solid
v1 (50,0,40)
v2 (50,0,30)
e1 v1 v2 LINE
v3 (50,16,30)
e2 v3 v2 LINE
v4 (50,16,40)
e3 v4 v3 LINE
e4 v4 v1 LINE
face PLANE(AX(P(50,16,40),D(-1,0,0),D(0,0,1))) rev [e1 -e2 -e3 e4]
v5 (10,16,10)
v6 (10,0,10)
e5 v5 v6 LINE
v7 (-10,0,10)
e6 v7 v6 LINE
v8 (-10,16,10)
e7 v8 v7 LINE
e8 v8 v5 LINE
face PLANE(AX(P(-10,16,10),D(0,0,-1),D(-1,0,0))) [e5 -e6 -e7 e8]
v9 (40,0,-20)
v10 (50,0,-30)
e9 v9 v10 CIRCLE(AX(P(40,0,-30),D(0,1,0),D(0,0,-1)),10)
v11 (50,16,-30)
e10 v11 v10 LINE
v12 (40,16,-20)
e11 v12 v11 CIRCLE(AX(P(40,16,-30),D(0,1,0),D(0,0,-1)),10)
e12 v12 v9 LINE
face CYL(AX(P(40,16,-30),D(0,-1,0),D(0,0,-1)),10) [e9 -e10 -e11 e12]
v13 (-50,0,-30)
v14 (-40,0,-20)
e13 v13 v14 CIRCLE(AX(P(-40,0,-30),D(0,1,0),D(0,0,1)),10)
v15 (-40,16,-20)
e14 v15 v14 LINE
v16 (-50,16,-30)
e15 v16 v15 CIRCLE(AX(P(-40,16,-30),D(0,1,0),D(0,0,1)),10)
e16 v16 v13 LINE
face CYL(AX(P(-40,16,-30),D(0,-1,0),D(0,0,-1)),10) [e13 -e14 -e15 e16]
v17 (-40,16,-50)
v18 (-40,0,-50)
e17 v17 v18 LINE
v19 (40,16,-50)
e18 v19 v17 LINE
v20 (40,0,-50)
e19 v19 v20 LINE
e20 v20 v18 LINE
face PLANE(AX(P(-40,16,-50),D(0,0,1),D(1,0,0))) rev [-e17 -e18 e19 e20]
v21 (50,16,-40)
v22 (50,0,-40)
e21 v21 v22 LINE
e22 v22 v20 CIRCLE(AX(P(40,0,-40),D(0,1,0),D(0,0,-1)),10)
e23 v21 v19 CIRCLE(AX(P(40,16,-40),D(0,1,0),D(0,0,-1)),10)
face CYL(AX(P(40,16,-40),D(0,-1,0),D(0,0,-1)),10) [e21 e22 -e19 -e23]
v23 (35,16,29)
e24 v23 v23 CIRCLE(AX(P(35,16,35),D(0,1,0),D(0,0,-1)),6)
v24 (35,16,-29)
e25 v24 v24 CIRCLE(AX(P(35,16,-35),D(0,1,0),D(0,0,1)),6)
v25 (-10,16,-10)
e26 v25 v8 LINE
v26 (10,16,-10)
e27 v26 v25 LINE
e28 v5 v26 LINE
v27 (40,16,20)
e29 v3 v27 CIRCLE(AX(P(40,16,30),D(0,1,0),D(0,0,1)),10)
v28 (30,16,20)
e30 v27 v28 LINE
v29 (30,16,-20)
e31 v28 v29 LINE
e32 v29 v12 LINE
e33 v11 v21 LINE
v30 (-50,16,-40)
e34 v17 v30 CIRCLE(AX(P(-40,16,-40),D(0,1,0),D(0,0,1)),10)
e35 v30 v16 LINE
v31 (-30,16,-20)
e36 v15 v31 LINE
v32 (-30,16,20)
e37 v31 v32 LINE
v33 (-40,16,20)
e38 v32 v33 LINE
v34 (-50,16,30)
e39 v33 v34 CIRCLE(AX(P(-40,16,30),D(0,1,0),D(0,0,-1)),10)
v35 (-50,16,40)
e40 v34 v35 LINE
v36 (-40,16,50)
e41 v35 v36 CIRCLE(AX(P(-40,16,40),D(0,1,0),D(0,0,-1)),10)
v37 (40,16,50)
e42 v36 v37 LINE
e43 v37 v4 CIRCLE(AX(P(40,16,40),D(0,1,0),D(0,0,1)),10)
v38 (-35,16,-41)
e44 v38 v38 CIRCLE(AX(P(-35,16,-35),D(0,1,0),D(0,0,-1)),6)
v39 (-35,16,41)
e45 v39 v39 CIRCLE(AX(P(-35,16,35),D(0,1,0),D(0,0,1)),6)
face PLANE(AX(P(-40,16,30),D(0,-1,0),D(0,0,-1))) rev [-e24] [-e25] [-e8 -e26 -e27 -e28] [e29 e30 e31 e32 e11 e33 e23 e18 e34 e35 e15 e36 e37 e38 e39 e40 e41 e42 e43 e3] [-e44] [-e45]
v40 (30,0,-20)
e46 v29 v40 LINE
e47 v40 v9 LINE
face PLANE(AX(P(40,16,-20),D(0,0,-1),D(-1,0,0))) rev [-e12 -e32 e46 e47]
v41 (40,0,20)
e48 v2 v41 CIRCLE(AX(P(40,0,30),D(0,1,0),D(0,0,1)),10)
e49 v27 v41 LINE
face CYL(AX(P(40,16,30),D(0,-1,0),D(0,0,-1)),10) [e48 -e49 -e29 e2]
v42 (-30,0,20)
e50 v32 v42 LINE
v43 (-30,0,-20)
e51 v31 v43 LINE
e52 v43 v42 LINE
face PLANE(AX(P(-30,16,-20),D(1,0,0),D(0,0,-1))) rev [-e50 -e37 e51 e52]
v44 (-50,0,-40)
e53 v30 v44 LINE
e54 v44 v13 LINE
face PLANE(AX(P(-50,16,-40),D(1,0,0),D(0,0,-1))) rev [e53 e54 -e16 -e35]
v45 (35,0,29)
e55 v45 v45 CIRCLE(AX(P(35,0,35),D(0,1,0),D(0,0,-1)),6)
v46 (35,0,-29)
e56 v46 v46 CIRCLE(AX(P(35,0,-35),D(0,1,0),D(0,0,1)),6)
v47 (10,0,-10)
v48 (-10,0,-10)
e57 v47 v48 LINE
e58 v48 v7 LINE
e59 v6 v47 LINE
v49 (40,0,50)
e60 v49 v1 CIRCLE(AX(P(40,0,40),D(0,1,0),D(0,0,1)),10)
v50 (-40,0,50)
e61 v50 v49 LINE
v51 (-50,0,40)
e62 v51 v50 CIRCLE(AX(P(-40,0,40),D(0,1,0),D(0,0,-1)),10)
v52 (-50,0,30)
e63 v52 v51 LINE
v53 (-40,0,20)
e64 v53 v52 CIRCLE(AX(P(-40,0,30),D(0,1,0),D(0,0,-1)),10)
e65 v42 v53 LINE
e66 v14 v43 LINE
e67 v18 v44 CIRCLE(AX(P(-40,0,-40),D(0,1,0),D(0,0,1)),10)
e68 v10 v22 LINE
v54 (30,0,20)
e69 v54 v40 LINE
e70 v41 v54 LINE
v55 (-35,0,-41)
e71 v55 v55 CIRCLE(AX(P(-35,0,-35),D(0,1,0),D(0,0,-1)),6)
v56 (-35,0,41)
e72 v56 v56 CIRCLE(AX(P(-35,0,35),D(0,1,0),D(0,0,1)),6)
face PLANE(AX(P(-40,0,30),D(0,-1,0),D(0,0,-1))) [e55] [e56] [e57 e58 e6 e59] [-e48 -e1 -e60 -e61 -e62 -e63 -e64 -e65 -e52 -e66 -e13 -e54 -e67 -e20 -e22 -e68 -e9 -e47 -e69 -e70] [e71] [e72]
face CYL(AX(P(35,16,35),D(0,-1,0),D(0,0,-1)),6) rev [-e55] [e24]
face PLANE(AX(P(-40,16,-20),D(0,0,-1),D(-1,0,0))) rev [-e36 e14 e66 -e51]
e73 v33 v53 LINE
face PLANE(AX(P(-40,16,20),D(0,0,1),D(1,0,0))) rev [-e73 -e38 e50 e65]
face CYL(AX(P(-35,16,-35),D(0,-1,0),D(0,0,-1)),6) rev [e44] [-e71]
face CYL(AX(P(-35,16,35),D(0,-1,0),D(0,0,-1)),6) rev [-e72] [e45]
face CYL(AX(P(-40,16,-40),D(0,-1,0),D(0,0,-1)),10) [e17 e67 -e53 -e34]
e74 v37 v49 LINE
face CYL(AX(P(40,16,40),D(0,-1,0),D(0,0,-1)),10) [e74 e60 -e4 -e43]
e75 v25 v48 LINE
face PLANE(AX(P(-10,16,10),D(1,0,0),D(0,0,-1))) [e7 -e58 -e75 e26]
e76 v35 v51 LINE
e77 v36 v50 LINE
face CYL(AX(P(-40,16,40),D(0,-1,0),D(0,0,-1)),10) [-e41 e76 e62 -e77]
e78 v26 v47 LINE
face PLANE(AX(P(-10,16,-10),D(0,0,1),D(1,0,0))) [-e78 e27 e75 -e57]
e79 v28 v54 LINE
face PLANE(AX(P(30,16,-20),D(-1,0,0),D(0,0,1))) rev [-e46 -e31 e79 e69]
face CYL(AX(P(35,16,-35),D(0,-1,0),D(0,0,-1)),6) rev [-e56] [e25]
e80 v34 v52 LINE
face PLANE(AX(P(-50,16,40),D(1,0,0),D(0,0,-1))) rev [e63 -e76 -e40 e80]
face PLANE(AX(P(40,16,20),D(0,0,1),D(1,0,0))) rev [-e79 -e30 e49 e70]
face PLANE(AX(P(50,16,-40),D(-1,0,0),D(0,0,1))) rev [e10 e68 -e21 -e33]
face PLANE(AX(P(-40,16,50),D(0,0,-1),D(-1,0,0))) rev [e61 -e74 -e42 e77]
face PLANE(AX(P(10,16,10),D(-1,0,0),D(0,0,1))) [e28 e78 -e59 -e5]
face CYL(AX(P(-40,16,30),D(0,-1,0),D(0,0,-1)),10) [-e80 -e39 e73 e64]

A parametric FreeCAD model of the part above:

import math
import FreeCAD as App
import Part
import Sketcher
from FreeCAD import Vector

doc = App.newDocument("Part")
body = doc.addObject("PartDesign::Body", "Body")

# Sketch on XZ plane
sketch1 = body.newObject("Sketcher::SketchObject", "Sketch")
sketch1.AttachmentSupport = (doc.getObject("XZ_Plane"), [""])
sketch1.MapMode = "FlatFace"
sketch1.addGeometry([
    Part.LineSegment(Vector(40, -50, 0), Vector(-40, -50, 0)),  # 0
    Part.ArcOfCircle(Part.Circle(Vector(-40, -40, 0), Vector(0, 0, 1), 10), math.radians(180), math.radians(270)),  # 1
    Part.LineSegment(Vector(-50, -40, 0), Vector(-50, -30, 0)),  # 2
    Part.ArcOfCircle(Part.Circle(Vector(-40, -30, 0), Vector(0, 0, 1), 10), math.radians(90), math.radians(180)),  # 3
    Part.LineSegment(Vector(-40, -20, 0), Vector(-30, -20, 0)),  # 4
    Part.LineSegment(Vector(-30, -20, 0), Vector(-30, 20, 0)),  # 5
    Part.LineSegment(Vector(-30, 20, 0), Vector(-40, 20, 0)),  # 6
    Part.ArcOfCircle(Part.Circle(Vector(-40, 30, 0), Vector(0, 0, 1), 10), math.radians(180), math.radians(270)),  # 7
    Part.LineSegment(Vector(-50, 30, 0), Vector(-50, 40, 0)),  # 8
    Part.ArcOfCircle(Part.Circle(Vector(-40, 40, 0), Vector(0, 0, 1), 10), math.radians(90), math.radians(180)),  # 9
    Part.LineSegment(Vector(-40, 50, 0), Vector(40, 50, 0)),  # 10
    Part.ArcOfCircle(Part.Circle(Vector(40, 40, 0), Vector(0, 0, 1), 10), math.radians(0), math.radians(90)),  # 11
    Part.LineSegment(Vector(50, 40, 0), Vector(50, 30, 0)),  # 12
    Part.ArcOfCircle(Part.Circle(Vector(40, 30, 0), Vector(0, 0, 1), 10), math.radians(-90), math.radians(0)),  # 13
    Part.LineSegment(Vector(40, 20, 0), Vector(30, 20, 0)),  # 14
    Part.LineSegment(Vector(30, 20, 0), Vector(30, -20, 0)),  # 15
    Part.LineSegment(Vector(30, -20, 0), Vector(40, -20, 0)),  # 16
    Part.ArcOfCircle(Part.Circle(Vector(40, -30, 0), Vector(0, 0, 1), 10), math.radians(0), math.radians(90)),  # 17
    Part.LineSegment(Vector(50, -30, 0), Vector(50, -40, 0)),  # 18
    Part.ArcOfCircle(Part.Circle(Vector(40, -40, 0), Vector(0, 0, 1), 10), math.radians(-90), math.radians(0)),  # 19
    Part.Circle(Vector(35, 35, 0), Vector(0, 0, 1), 6),  # 20
    Part.Circle(Vector(-35, 35, 0), Vector(0, 0, 1), 6),  # 21
    Part.Circle(Vector(35, -35, 0), Vector(0, 0, 1), 6),  # 22
    Part.LineSegment(Vector(-10, 10, 0), Vector(-10, -10, 0)),  # 23
    Part.LineSegment(Vector(-10, -10, 0), Vector(10, -10, 0)),  # 24
    Part.LineSegment(Vector(10, -10, 0), Vector(10, 10, 0)),  # 25
    Part.LineSegment(Vector(10, 10, 0), Vector(-10, 10, 0)),  # 26
    Part.Circle(Vector(-35, -35, 0), Vector(0, 0, 1), 6),  # 27
], False)
sketch1.addConstraint([
    Sketcher.Constraint("Tangent", 0, 2, 1, 2),
    Sketcher.Constraint("Tangent", 1, 1, 2, 1),
    Sketcher.Constraint("Tangent", 2, 2, 3, 2),
    Sketcher.Constraint("Tangent", 3, 1, 4, 1),
    Sketcher.Constraint("Coincident", 4, 2, 5, 1),
    Sketcher.Constraint("Coincident", 5, 2, 6, 1),
    Sketcher.Constraint("Tangent", 6, 2, 7, 2),
    Sketcher.Constraint("Tangent", 7, 1, 8, 1),
    Sketcher.Constraint("Tangent", 8, 2, 9, 2),
    Sketcher.Constraint("Tangent", 9, 1, 10, 1),
    Sketcher.Constraint("Tangent", 10, 2, 11, 2),
    Sketcher.Constraint("Tangent", 11, 1, 12, 1),
    Sketcher.Constraint("Tangent", 12, 2, 13, 2),
    Sketcher.Constraint("Tangent", 13, 1, 14, 1),
    Sketcher.Constraint("Coincident", 14, 2, 15, 1),
    Sketcher.Constraint("Coincident", 15, 2, 16, 1),
    Sketcher.Constraint("Tangent", 16, 2, 17, 2),
    Sketcher.Constraint("Tangent", 17, 1, 18, 1),
    Sketcher.Constraint("Tangent", 18, 2, 19, 2),
    Sketcher.Constraint("Tangent", 19, 1, 0, 1),
    Sketcher.Constraint("Coincident", 23, 2, 24, 1),
    Sketcher.Constraint("Coincident", 24, 2, 25, 1),
    Sketcher.Constraint("Coincident", 25, 2, 26, 1),
    Sketcher.Constraint("Coincident", 26, 2, 23, 1),
    Sketcher.Constraint("Horizontal", 0),
    Sketcher.Constraint("Vertical", 2),
    Sketcher.Constraint("Horizontal", 4),
    Sketcher.Constraint("Vertical", 5),
    Sketcher.Constraint("Horizontal", 6),
    Sketcher.Constraint("Vertical", 8),
    Sketcher.Constraint("Horizontal", 10),
    Sketcher.Constraint("Vertical", 12),
    Sketcher.Constraint("Horizontal", 14),
    Sketcher.Constraint("Vertical", 15),
    Sketcher.Constraint("Horizontal", 16),
    Sketcher.Constraint("Vertical", 18),
    Sketcher.Constraint("Vertical", 23),
    Sketcher.Constraint("Horizontal", 24),
    Sketcher.Constraint("Vertical", 25),
    Sketcher.Constraint("Horizontal", 26),
    Sketcher.Constraint("Equal", 1, 3),
    Sketcher.Constraint("Equal", 3, 7),
    Sketcher.Constraint("Equal", 7, 9),
    Sketcher.Constraint("Equal", 9, 11),
    Sketcher.Constraint("Equal", 11, 13),
    Sketcher.Constraint("Equal", 13, 17),
    Sketcher.Constraint("Equal", 17, 19),
    Sketcher.Constraint("Equal", 20, 21),
    Sketcher.Constraint("Equal", 21, 22),
    Sketcher.Constraint("Equal", 22, 27),
    Sketcher.Constraint("Symmetric", 1, 3, 11, 3, -1, 1),
    Sketcher.Constraint("Symmetric", 7, 3, 17, 3, -1, 1),
    Sketcher.Constraint("Symmetric", 21, 3, 22, 3, -1, 1),
    Sketcher.Constraint("Symmetric", 20, 3, 27, 3, -1, 1),
    Sketcher.Constraint("Symmetric", 4, 2, 14, 2, -1, 1),
    Sketcher.Constraint("Symmetric", 23, 2, 25, 2, -1, 1),
    Sketcher.Constraint("Symmetric", 7, 3, 13, 3, -2),
    Sketcher.Constraint("Symmetric", 20, 3, 21, 3, -2),
    Sketcher.Constraint("Equal", 16, 2),
    Sketcher.Constraint("Equal", 26, 23),
    Sketcher.Constraint("Diameter", 20, 12.0),
    Sketcher.Constraint("Radius", 1, 10.0),
    Sketcher.Constraint("DistanceX", 0, 2, 0, 1, 80.0),
    Sketcher.Constraint("DistanceX", 4, 1, 4, 2, 10.0),
    Sketcher.Constraint("DistanceX", 24, 1, 24, 2, 20.0),
    Sketcher.Constraint("DistanceY", 5, 1, 5, 2, 40.0),
    Sketcher.Constraint("DistanceX", -1, 1, 20, 3, 35.0),
    Sketcher.Constraint("DistanceY", -1, 1, 20, 3, 35.0),
])
pad1 = body.newObject("PartDesign::Pad", "Pad")
pad1.Profile = sketch1
pad1.Length = 16
pad1.Reversed = True

doc.recompute()
